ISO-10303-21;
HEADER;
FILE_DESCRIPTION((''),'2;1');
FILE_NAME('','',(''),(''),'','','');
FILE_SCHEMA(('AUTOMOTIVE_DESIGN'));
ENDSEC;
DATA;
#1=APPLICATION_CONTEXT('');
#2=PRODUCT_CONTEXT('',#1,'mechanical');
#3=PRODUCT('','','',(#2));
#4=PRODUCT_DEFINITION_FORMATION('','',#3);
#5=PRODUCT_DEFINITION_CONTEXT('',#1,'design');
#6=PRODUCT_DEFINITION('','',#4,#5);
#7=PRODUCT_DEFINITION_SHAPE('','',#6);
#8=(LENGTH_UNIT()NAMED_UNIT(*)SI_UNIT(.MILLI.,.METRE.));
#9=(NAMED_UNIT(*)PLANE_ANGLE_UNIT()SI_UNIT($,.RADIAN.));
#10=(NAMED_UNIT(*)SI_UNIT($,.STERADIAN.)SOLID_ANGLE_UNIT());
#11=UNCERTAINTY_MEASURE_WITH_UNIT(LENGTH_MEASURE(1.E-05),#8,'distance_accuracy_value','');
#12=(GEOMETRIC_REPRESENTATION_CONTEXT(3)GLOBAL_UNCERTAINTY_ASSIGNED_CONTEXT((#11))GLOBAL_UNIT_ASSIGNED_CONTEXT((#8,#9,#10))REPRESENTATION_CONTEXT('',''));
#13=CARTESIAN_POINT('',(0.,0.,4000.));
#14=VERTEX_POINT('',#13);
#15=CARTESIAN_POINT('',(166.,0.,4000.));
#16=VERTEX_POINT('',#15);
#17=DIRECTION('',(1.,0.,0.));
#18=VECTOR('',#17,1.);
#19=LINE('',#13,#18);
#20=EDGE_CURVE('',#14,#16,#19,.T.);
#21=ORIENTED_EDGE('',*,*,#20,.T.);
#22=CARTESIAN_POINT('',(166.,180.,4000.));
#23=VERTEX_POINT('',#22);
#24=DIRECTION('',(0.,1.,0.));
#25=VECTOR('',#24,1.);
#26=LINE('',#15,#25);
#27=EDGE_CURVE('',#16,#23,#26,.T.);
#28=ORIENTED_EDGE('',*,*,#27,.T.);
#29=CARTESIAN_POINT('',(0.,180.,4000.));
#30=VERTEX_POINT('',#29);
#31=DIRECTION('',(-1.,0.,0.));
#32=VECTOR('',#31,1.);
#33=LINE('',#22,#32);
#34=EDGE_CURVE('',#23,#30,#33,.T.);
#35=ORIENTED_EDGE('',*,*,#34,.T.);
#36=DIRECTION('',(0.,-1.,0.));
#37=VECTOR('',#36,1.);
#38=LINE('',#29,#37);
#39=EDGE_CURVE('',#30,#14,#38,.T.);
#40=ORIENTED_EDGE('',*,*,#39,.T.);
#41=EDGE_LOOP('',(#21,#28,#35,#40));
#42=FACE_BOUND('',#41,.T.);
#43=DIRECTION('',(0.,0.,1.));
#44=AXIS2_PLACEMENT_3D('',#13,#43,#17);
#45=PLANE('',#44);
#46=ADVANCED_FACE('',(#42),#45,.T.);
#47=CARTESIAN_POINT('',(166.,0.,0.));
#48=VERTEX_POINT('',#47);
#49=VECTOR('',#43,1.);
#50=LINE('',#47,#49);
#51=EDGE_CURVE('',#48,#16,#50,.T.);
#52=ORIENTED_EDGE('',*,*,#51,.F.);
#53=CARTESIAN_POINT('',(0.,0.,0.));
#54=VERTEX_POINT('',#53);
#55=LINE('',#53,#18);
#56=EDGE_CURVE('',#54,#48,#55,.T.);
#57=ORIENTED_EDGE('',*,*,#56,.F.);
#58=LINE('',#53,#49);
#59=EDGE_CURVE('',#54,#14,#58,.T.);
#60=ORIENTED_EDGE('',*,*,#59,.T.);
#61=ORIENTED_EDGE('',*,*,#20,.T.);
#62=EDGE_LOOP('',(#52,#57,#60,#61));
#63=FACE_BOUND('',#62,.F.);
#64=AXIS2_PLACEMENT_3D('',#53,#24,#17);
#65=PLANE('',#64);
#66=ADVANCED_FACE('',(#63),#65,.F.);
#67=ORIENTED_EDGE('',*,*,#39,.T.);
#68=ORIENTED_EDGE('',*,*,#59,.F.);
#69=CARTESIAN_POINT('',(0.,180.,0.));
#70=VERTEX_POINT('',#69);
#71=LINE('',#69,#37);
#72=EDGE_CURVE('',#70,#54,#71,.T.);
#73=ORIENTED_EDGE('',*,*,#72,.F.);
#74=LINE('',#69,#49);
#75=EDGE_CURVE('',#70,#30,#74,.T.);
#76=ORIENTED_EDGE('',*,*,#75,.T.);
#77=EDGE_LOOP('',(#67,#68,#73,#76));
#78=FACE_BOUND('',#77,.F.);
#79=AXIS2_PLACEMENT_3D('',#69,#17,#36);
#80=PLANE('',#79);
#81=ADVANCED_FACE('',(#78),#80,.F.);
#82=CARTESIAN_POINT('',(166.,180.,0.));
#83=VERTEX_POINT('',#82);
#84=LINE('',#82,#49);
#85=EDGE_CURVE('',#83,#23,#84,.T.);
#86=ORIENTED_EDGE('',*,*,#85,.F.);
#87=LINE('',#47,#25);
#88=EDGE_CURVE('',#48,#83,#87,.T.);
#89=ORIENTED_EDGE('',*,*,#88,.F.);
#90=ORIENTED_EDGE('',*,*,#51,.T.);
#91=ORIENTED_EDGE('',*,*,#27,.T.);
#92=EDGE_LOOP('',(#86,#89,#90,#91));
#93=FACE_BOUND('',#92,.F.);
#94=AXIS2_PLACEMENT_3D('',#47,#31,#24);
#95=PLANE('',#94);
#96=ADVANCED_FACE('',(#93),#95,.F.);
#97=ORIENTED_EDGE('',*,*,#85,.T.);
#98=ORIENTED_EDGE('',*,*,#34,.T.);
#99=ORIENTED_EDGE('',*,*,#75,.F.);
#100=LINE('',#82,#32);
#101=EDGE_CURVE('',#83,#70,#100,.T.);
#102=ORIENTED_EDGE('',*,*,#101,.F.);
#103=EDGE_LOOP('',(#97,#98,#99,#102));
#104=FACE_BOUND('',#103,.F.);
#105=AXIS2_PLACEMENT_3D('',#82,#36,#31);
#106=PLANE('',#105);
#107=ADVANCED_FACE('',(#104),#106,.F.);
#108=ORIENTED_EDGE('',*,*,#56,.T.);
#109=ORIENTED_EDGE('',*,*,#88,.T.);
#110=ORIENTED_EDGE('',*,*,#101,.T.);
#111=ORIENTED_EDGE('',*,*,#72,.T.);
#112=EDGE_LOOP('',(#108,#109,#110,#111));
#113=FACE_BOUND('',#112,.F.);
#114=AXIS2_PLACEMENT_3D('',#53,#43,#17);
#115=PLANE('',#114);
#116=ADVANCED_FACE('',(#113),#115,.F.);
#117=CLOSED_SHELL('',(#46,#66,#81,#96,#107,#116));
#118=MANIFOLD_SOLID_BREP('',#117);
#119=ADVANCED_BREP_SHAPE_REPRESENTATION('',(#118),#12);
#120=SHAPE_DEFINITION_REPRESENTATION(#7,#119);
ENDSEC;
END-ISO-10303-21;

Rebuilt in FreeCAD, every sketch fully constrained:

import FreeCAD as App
import Part
import Sketcher
from FreeCAD import Vector
Q = App.Units.Quantity


def add_polygon(sketch, points):
    """Adds a closed chain of lines whose ends are joined by coincident constraints."""
    first, n = sketch.GeometryCount, len(points)
    for a, b in zip(points, points[1:] + points[:1]):
        sketch.addGeometry(Part.LineSegment(App.Vector(*a, 0), App.Vector(*b, 0)), False)
    for i in range(n):
        sketch.addConstraint(Sketcher.Constraint("Coincident", first + i, 2, first + (i + 1) % n, 1))

doc = App.newDocument("Part")
body = doc.addObject("PartDesign::Body", "Body")

# Sketch on XY plane
sketch1 = body.newObject("Sketcher::SketchObject", "Sketch")
sketch1.AttachmentSupport = (doc.getObject("XY_Plane"), [""])
sketch1.MapMode = "FlatFace"
add_polygon(sketch1, [(0, 180), (0, 0), (166, 0), (166, 180)])  # lines 0-3
sketch1.addConstraint([
    Sketcher.Constraint("Vertical", 0),
    Sketcher.Constraint("Horizontal", 1),
    Sketcher.Constraint("Vertical", 2),
    Sketcher.Constraint("Horizontal", 3),
    Sketcher.Constraint("Coincident", 0, 2, -1, 1),
    Sketcher.Constraint("DistanceX", 1, 1, 1, 2, Q("166 mm")),
    Sketcher.Constraint("DistanceY", 0, 2, 0, 1, Q("180 mm")),
])
pad1 = body.newObject("PartDesign::Pad", "Pad")
pad1.Profile = sketch1
pad1.Length = 4000

doc.recompute()
